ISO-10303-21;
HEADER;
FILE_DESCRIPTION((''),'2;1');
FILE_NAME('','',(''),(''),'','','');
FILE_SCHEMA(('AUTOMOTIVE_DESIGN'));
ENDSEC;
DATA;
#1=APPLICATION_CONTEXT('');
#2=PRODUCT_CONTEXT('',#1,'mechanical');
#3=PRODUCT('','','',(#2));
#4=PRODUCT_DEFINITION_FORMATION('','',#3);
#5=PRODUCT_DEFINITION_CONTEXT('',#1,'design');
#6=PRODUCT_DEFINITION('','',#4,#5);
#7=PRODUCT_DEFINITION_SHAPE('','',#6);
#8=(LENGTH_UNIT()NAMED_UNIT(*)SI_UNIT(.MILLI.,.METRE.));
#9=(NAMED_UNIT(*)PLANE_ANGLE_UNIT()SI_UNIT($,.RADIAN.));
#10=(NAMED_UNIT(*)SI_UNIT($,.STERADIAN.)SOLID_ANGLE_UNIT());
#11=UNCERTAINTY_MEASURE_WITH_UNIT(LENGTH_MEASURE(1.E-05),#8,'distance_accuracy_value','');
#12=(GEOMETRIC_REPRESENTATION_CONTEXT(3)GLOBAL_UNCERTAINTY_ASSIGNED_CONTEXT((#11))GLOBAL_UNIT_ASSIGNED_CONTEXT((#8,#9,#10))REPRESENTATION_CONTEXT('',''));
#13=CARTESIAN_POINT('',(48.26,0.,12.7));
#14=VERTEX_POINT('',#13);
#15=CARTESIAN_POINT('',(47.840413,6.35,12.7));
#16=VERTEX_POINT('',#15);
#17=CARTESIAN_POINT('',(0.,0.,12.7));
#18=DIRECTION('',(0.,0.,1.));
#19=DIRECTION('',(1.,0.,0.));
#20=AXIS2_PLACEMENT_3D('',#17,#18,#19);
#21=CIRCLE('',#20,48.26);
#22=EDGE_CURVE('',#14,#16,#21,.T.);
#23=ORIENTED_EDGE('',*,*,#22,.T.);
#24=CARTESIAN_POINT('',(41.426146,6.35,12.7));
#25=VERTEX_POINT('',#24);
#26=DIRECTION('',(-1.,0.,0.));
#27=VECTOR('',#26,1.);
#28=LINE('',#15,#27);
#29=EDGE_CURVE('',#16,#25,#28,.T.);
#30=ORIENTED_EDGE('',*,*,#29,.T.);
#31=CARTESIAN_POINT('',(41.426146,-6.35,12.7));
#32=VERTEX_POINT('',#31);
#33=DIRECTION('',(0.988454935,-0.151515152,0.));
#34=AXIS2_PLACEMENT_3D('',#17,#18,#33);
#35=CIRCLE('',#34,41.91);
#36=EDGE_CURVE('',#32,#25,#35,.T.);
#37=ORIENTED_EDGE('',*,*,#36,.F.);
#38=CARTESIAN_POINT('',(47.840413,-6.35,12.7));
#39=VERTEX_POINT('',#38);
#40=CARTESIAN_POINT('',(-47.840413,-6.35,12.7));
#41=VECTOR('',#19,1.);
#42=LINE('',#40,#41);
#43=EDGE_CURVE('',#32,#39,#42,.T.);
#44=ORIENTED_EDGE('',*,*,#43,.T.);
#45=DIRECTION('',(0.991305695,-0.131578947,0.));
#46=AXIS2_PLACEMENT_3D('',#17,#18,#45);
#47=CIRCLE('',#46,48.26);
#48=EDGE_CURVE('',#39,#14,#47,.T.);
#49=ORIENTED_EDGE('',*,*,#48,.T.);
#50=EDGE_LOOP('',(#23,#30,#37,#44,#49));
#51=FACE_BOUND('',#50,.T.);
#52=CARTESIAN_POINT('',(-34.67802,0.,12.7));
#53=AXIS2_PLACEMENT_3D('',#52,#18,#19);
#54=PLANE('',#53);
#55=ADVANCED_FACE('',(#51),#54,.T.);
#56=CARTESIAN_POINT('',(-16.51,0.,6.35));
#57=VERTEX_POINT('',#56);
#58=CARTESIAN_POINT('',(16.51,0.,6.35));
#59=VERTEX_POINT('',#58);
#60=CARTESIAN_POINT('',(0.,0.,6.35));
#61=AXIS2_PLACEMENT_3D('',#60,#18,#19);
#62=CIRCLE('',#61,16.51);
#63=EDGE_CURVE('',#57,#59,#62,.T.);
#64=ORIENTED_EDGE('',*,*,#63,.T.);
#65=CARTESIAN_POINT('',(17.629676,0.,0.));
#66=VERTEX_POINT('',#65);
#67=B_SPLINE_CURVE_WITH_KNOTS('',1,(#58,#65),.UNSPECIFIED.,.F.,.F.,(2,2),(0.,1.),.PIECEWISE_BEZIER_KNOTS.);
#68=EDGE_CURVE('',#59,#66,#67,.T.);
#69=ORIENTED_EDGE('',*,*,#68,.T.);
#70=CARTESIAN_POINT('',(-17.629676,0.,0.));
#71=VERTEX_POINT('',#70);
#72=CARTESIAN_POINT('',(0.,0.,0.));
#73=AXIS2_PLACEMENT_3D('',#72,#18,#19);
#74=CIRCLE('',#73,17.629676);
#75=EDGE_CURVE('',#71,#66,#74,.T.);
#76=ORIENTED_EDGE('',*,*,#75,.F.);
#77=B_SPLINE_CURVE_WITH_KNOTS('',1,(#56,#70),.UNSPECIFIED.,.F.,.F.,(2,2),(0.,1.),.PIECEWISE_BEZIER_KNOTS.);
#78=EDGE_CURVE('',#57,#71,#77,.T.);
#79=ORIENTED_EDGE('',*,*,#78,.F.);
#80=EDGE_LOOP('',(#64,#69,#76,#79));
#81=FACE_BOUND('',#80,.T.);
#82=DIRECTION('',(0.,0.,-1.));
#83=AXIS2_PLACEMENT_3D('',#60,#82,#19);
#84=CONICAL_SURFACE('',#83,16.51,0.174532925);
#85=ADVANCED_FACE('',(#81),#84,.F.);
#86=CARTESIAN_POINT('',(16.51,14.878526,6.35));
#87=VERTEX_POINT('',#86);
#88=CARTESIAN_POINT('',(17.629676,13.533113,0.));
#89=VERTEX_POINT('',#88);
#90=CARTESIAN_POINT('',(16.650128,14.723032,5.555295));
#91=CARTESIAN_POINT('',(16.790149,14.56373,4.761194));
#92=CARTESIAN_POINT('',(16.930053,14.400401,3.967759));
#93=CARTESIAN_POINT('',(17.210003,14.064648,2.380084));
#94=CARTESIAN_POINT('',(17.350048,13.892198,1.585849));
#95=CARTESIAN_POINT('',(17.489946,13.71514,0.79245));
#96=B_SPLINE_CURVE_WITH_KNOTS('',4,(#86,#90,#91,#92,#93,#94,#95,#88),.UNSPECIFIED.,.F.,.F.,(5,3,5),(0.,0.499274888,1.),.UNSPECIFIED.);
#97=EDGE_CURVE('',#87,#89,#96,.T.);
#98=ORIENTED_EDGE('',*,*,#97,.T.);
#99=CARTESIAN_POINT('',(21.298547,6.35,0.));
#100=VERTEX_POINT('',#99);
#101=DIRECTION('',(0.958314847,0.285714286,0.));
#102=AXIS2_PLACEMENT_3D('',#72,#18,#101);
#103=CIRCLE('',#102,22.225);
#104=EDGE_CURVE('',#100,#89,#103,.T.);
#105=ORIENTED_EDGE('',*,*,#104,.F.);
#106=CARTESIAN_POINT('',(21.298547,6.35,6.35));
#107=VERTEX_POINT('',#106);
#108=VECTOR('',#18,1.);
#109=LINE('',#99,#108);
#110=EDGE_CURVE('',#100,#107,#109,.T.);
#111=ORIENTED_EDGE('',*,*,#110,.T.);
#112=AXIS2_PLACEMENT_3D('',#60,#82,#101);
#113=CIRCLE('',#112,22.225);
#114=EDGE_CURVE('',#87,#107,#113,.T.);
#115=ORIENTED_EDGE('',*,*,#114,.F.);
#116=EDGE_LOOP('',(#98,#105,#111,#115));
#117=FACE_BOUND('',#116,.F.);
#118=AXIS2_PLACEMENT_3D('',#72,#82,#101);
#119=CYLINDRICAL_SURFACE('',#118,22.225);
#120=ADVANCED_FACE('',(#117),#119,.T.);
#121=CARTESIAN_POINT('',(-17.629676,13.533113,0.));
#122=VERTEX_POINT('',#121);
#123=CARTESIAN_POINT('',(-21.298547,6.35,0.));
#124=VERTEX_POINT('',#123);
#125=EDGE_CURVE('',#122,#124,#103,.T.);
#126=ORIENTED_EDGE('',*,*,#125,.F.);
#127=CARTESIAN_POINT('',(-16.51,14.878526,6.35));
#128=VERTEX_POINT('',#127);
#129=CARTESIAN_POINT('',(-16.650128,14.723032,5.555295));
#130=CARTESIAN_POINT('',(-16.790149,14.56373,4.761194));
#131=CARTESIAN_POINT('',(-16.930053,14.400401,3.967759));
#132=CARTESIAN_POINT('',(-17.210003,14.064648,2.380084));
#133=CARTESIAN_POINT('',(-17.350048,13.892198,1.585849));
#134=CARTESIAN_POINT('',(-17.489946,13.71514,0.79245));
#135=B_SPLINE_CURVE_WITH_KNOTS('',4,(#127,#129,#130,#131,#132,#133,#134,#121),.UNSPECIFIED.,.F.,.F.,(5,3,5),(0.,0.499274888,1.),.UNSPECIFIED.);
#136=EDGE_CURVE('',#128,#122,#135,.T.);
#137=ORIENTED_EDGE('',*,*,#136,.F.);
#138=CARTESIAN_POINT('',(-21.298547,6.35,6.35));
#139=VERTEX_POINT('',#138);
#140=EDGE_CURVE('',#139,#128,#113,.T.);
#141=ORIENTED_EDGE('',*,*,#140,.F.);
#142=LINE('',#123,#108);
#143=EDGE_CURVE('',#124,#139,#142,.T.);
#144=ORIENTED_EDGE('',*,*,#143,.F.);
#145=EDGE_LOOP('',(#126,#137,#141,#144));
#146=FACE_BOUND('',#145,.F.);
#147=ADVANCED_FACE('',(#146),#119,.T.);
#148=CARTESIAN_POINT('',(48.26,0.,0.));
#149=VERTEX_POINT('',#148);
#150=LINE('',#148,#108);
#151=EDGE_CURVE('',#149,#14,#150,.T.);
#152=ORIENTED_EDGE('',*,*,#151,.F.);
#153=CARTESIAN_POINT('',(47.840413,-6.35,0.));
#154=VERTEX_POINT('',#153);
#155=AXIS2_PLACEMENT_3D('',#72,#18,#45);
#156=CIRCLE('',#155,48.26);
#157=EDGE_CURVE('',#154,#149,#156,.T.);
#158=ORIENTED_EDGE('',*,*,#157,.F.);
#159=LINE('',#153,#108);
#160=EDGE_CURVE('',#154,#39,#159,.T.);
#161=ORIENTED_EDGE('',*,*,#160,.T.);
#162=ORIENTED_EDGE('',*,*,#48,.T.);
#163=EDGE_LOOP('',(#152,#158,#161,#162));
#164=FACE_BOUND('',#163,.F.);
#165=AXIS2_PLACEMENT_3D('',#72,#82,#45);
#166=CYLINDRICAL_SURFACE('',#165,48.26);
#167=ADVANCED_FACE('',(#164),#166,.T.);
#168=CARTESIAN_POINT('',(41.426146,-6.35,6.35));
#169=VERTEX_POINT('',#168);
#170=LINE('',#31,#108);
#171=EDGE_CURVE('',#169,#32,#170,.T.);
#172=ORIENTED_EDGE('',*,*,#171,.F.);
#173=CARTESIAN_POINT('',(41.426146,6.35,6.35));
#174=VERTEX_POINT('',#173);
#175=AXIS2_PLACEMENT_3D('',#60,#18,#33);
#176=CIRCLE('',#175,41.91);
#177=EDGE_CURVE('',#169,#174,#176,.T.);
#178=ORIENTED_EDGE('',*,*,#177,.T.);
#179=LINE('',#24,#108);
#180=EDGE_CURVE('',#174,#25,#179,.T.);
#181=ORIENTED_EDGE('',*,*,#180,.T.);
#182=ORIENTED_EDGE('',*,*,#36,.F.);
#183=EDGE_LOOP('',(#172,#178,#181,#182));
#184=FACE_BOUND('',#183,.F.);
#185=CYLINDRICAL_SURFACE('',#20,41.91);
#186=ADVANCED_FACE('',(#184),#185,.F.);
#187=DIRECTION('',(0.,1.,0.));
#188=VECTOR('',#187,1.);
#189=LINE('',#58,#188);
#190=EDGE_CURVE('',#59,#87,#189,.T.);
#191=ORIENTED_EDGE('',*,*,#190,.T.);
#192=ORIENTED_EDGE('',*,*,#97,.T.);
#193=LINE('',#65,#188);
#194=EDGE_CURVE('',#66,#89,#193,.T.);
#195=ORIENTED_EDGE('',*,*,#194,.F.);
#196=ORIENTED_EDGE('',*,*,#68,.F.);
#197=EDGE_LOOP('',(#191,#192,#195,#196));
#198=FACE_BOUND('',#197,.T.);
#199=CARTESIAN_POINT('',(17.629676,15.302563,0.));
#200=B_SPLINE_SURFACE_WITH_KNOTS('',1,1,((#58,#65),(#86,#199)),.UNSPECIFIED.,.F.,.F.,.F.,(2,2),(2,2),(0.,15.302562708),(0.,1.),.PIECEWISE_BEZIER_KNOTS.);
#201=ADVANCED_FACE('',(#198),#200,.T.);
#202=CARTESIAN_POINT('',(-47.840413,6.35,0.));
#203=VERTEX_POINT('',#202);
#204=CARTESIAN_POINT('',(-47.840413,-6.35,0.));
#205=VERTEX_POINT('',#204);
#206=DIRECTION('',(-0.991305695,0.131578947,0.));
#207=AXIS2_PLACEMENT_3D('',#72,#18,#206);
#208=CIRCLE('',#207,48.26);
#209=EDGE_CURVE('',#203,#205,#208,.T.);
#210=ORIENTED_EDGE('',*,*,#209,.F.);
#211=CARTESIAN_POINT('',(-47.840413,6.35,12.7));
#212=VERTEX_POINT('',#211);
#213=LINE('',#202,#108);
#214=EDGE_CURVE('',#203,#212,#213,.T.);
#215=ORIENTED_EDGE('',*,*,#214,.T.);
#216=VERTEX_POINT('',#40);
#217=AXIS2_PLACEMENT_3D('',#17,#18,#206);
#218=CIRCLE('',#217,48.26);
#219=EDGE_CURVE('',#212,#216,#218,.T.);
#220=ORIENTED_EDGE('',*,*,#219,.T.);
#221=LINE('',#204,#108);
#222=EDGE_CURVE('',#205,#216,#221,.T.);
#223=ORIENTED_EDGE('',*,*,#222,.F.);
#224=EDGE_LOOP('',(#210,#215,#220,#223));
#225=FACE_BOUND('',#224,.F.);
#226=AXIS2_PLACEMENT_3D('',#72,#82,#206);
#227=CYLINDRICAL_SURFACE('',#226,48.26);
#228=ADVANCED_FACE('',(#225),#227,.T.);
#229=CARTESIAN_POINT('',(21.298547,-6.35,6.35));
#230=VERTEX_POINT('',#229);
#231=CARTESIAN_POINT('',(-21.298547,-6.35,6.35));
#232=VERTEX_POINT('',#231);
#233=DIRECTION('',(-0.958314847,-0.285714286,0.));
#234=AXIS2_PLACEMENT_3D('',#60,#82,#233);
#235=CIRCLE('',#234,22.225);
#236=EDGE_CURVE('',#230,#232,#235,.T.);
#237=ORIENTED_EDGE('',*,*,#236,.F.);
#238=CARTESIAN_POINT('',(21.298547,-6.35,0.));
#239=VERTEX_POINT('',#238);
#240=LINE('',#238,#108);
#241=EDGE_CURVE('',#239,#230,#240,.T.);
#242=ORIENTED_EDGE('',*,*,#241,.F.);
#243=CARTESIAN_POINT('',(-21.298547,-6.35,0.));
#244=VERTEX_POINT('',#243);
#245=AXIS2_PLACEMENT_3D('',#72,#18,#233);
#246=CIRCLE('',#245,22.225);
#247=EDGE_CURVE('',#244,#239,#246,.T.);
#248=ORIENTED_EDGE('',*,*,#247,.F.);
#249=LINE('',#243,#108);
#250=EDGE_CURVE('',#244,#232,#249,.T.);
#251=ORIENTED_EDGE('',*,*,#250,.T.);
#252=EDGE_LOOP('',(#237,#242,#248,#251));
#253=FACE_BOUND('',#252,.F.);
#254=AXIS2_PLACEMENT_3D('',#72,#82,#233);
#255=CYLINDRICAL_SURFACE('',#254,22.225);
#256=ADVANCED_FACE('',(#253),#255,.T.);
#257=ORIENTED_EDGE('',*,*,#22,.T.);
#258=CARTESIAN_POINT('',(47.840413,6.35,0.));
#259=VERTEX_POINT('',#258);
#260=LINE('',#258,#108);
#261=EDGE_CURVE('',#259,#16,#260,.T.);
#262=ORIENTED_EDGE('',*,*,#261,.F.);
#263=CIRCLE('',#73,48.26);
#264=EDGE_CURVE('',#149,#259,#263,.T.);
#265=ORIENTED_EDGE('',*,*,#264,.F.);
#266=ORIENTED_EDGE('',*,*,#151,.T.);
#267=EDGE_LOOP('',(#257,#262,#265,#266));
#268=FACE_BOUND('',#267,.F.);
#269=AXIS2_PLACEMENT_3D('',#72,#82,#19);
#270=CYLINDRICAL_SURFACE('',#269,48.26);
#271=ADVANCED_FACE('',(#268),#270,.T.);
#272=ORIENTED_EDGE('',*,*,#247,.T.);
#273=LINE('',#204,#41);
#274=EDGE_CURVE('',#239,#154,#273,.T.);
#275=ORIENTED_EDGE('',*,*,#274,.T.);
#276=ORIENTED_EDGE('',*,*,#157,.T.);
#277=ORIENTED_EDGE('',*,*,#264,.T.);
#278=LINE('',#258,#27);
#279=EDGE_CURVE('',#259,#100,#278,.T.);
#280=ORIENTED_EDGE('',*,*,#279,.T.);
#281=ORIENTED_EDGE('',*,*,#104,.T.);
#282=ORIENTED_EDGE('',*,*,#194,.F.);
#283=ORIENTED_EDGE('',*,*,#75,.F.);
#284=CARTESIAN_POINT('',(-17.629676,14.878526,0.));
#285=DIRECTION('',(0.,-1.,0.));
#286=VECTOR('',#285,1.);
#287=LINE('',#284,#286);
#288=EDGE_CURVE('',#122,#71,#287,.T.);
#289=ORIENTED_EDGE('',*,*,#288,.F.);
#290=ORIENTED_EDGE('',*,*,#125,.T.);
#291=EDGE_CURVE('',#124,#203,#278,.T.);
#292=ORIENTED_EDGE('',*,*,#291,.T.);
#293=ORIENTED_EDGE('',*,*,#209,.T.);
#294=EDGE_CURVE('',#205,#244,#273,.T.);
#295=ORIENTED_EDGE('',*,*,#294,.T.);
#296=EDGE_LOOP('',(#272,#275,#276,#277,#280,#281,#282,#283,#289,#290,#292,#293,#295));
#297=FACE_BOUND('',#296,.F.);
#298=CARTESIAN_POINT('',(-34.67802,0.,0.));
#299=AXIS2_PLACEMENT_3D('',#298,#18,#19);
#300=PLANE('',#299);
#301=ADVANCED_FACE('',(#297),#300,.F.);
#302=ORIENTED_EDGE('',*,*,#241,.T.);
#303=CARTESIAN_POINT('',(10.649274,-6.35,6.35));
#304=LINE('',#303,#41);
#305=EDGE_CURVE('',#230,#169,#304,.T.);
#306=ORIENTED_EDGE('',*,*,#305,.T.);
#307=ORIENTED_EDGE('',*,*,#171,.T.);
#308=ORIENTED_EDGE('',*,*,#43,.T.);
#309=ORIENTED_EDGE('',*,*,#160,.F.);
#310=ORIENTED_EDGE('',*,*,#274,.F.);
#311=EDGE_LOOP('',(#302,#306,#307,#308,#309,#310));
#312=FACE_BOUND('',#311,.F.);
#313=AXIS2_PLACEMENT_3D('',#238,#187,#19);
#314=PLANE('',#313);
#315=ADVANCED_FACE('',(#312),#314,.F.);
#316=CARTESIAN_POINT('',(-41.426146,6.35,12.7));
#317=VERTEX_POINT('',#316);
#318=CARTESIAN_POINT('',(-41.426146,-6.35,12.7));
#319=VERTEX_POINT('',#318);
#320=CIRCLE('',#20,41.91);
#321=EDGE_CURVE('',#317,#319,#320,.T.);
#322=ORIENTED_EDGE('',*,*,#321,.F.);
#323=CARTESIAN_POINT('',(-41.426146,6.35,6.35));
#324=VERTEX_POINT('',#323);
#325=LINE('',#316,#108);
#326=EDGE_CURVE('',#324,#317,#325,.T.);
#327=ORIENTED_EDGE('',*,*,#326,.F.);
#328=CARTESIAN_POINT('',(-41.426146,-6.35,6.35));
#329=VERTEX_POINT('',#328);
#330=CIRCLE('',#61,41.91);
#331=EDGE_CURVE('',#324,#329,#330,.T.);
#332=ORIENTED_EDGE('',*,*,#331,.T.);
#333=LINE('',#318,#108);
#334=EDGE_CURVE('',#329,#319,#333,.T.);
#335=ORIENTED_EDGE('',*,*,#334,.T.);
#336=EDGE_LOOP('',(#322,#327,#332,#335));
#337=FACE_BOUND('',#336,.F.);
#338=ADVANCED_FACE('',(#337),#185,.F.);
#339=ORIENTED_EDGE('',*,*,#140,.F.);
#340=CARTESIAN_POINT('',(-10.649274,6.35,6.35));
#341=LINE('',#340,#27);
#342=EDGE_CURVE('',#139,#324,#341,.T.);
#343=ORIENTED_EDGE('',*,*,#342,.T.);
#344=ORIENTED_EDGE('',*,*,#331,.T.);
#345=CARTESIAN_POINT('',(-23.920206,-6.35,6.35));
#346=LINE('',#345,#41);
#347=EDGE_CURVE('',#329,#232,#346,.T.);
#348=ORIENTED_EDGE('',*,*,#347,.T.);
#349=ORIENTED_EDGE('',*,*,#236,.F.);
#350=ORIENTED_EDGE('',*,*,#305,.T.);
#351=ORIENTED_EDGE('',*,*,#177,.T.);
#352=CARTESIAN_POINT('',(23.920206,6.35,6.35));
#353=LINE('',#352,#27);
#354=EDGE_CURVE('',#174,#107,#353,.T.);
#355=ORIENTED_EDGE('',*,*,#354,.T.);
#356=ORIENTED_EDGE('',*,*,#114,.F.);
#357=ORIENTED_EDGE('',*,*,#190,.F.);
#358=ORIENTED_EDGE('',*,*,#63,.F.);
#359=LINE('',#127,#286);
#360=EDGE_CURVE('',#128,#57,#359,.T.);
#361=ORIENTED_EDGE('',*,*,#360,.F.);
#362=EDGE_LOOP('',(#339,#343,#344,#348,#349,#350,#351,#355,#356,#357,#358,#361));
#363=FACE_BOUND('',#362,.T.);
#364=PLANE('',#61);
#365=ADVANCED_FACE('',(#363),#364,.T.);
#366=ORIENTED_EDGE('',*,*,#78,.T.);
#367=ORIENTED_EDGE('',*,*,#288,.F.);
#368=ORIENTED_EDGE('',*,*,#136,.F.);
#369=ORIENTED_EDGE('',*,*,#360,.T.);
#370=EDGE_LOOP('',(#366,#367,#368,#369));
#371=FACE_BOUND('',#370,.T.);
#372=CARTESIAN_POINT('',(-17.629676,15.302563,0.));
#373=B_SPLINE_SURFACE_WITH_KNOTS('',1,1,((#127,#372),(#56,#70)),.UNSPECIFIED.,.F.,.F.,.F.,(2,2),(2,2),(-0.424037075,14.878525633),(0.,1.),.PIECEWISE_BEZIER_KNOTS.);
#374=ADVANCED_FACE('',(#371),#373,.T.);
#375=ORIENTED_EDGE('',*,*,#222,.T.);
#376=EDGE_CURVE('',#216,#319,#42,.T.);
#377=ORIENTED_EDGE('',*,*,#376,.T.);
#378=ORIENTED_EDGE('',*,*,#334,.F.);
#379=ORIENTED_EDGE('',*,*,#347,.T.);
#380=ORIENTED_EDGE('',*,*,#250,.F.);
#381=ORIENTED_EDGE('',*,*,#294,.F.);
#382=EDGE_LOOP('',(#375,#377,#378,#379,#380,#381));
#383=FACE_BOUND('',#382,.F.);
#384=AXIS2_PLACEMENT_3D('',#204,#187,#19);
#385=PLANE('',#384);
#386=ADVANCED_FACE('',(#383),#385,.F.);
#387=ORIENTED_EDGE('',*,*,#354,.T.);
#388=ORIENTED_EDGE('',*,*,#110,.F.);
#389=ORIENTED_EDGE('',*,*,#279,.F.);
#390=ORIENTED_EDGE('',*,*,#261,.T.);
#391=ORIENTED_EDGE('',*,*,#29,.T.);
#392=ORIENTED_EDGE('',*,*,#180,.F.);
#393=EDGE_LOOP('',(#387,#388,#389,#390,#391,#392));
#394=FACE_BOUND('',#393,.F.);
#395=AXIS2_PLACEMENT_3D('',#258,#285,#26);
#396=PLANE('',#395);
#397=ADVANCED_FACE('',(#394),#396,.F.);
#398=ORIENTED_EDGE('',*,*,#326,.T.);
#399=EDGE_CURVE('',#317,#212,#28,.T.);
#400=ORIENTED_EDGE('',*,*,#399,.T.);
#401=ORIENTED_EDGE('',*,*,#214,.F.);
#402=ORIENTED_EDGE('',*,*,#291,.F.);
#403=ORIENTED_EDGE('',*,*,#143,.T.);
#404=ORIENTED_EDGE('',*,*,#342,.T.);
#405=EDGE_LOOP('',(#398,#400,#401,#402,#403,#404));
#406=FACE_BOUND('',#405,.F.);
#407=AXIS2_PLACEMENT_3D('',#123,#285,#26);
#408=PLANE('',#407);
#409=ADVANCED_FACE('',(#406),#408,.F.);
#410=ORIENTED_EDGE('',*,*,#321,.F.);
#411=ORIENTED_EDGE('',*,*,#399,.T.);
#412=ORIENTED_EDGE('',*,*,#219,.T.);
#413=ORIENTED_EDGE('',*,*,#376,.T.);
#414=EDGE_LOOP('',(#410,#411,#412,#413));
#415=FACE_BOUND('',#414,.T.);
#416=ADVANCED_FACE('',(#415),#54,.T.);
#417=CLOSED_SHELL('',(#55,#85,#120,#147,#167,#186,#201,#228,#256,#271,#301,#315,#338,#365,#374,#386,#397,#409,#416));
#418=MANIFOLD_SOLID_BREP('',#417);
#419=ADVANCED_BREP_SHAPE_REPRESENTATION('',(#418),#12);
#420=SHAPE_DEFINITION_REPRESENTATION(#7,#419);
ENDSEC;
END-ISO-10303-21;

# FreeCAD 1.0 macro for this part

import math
import FreeCAD as App
import Part
import Sketcher

V = App.Vector
Q = App.Units.Quantity

doc = App.newDocument("Part")
body = doc.addObject("PartDesign::Body", "Body")

# Sketch on XY plane
sketch1 = body.newObject("Sketcher::SketchObject", "Sketch")
sketch1.AttachmentSupport = (doc.getObject("XY_Plane"), [""])
sketch1.MapMode = "FlatFace"
sketch1.addGeometry([
    Part.ArcOfCircle(Part.Circle(V(0, 0, 0), V(0, 0, 1), 48), math.radians(172.44), math.radians(187.56)),  # 0
    Part.LineSegment(V(-48, -6, 0), V(-21, -6, 0)),  # 1
    Part.ArcOfCircle(Part.Circle(V(0, 0, 0), V(0, 0, 1), 22), math.radians(-163), math.radians(-17)),  # 2
    Part.LineSegment(V(21, -6, 0), V(48, -6, 0)),  # 3
    Part.ArcOfCircle(Part.Circle(V(0, 0, 0), V(0, 0, 1), 48), math.radians(-7.56), math.radians(0)),  # 4
    Part.ArcOfCircle(Part.Circle(V(0, 0, 0), V(0, 0, 1), 48), math.radians(0), math.radians(7.56)),  # 5
    Part.LineSegment(V(48, 6, 0), V(21, 6, 0)),  # 6
    Part.ArcOfCircle(Part.Circle(V(0, 0, 0), V(0, 0, 1), 22), math.radians(17), math.radians(163)),  # 7
    Part.LineSegment(V(-21, 6, 0), V(-48, 6, 0)),  # 8
], False)
sketch1.addConstraint([
    Sketcher.Constraint("Coincident", 0, 2, 1, 1),
    Sketcher.Constraint("Coincident", 1, 2, 2, 1),
    Sketcher.Constraint("Coincident", 2, 2, 3, 1),
    Sketcher.Constraint("Coincident", 3, 2, 4, 1),
    Sketcher.Constraint("Tangent", 4, 2, 5, 1),
    Sketcher.Constraint("Coincident", 5, 2, 6, 1),
    Sketcher.Constraint("Coincident", 6, 2, 7, 1),
    Sketcher.Constraint("Coincident", 7, 2, 8, 1),
    Sketcher.Constraint("Coincident", 8, 2, 0, 1),
    Sketcher.Constraint("Horizontal", 1),
    Sketcher.Constraint("Horizontal", 3),
    Sketcher.Constraint("Horizontal", 6),
    Sketcher.Constraint("Horizontal", 8),
    Sketcher.Constraint("Coincident", 0, 3, -1, 1),
    Sketcher.Constraint("Coincident", 2, 3, -1, 1),
    Sketcher.Constraint("Coincident", 4, 3, -1, 1),
    Sketcher.Constraint("Coincident", 7, 3, -1, 1),
    Sketcher.Constraint("Equal", 0, 4),
    Sketcher.Constraint("Equal", 4, 5),
    Sketcher.Constraint("Equal", 2, 7),
    Sketcher.Constraint("PointOnObject", 4, 2, -1),
    Sketcher.Constraint("Horizontal", 1, 2, 2, 2),
    Sketcher.Constraint("Horizontal", 6, 2, 7, 2),
    Sketcher.Constraint("Vertical", 3, 2, 5, 2),
    Sketcher.Constraint("Radius", 0, Q("1.9 in")),
    Sketcher.Constraint("Radius", 2, Q("0.875 in")),
    Sketcher.Constraint("DistanceY", 3, 2, 5, 2, Q("0.5 in")),
])
pad1 = body.newObject("PartDesign::Pad", "Pad")
pad1.Profile = sketch1
pad1.Length = Q("0.5 in")

# Sketch on XY plane
sketch2 = body.newObject("Sketcher::SketchObject", "Sketch001")
sketch2.AttachmentSupport = (doc.getObject("XY_Plane"), [""])
sketch2.MapMode = "FlatFace"
sketch2.AttachmentOffset = App.Placement(V(0, 0, 0.5 * 25.4), App.Rotation())
sketch2.addGeometry(Part.Circle(V(0, 0, 0), V(0, 0, 1), 42), False)
sketch2.addConstraint([
    Sketcher.Constraint("Coincident", 0, 3, -1, 1),
    Sketcher.Constraint("Diameter", 0, Q("3.3 in")),
])
pocket1 = body.newObject("PartDesign::Pocket", "Pocket")
pocket1.Profile = sketch2
pocket1.Length = Q("0.25 in")

# Sketch on XY plane
sketch3 = body.newObject("Sketcher::SketchObject", "Sketch002")
sketch3.AttachmentSupport = (doc.getObject("XY_Plane"), [""])
sketch3.MapMode = "FlatFace"
sketch3.AttachmentOffset = App.Placement(V(0, 0, 0.25 * 25.4), App.Rotation())
sketch3.addGeometry([
    Part.LineSegment(V(17, 0, 0), V(17, 15, 0)),
    Part.ArcOfCircle(Part.Circle(V(0, 0, 0), V(0, 0, 1), 22), math.radians(42), math.radians(138)),
    Part.LineSegment(V(-17, 15, 0), V(-17, 0, 0)),
    Part.ArcOfCircle(Part.Circle(V(0, 0, 0), V(0, 0, 1), 17), math.radians(180), math.radians(360)),
], False)
sketch3.addConstraint([
    Sketcher.Constraint("Coincident", 0, 2, 1, 1),
    Sketcher.Constraint("Coincident", 1, 2, 2, 1),
    Sketcher.Constraint("Tangent", 2, 2, 3, 1),
    Sketcher.Constraint("Tangent", 3, 2, 0, 1),
    Sketcher.Constraint("Vertical", 0),
    Sketcher.Constraint("Vertical", 2),
    Sketcher.Constraint("Coincident", 1, 3, -1, 1),
    Sketcher.Constraint("Coincident", 3, 3, -1, 1),
    Sketcher.Constraint("Radius", 3, Q("0.65 in")),
    Sketcher.Constraint("Radius", 1, Q("0.875 in")),
])
pocket2 = body.newObject("PartDesign::Pocket", "Pocket001")
pocket2.Profile = sketch3
pocket2.Length = Q("0.25 in")
pocket2.TaperAngle = 10

doc.recompute()
